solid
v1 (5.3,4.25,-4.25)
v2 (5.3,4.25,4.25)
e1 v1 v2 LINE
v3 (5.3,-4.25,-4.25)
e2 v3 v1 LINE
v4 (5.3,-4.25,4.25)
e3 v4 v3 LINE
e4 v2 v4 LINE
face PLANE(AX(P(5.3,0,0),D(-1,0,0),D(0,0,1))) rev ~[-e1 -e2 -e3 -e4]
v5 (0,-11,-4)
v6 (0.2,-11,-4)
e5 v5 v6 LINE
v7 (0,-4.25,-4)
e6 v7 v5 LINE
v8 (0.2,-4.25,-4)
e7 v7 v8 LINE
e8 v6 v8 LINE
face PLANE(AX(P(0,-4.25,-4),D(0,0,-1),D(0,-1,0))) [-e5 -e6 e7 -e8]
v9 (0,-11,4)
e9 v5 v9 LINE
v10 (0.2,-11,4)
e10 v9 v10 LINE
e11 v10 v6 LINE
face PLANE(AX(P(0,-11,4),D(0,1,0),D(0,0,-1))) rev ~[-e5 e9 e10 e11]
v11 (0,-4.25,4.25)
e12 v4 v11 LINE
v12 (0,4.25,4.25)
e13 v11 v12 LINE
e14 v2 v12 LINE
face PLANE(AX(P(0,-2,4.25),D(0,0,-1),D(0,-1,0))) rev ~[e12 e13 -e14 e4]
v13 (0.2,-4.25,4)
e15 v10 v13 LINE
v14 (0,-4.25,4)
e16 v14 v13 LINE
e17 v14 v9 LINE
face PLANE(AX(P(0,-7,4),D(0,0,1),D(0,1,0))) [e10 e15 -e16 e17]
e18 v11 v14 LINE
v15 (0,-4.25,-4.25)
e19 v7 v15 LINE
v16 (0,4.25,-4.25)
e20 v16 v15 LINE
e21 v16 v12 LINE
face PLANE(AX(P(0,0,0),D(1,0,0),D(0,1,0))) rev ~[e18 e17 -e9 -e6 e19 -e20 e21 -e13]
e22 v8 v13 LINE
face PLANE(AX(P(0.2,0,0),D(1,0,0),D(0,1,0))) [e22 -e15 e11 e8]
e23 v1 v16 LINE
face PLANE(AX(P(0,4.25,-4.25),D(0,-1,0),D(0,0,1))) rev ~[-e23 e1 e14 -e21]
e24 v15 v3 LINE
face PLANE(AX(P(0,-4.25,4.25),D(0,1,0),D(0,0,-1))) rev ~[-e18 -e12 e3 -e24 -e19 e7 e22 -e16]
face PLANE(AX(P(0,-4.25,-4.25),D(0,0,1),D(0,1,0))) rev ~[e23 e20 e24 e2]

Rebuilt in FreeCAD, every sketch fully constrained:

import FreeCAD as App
import Part
import Sketcher

V = App.Vector
Q = App.Units.Quantity


def add_polygon(sketch, points):
    """Adds a closed chain of lines whose ends are joined by coincident constraints."""
    first, n = sketch.GeometryCount, len(points)
    for a, b in zip(points, points[1:] + points[:1]):
        sketch.addGeometry(Part.LineSegment(App.Vector(*a, 0), App.Vector(*b, 0)), False)
    for i in range(n):
        sketch.addConstraint(Sketcher.Constraint("Coincident", first + i, 2, first + (i + 1) % n, 1))

doc = App.newDocument("Part")
body = doc.addObject("PartDesign::Body", "Body")

sketch1 = body.newObject("Sketcher::SketchObject", "Sketch")
sketch1.AttachmentSupport = (doc.getObject("YZ_Plane"), [""])
sketch1.MapMode = "FlatFace"
add_polygon(sketch1, [(-4.25, 4), (-11, 4), (-11, -4), (-4.25, -4), (-4.25, -4.25), (4.25, -4.25), (4.25, 4.25), (-4.25, 4.25)])
sketch1.addConstraint(Sketcher.Constraint("Horizontal", 0))
sketch1.addConstraint(Sketcher.Constraint("Vertical", 1))
sketch1.addConstraint(Sketcher.Constraint("Horizontal", 2))
sketch1.addConstraint(Sketcher.Constraint("Vertical", 3))
sketch1.addConstraint(Sketcher.Constraint("Horizontal", 4))
sketch1.addConstraint(Sketcher.Constraint("Vertical", 5))
sketch1.addConstraint(Sketcher.Constraint("Horizontal", 6))
sketch1.addConstraint(Sketcher.Constraint("Vertical", 7))
sketch1.addConstraint(Sketcher.Constraint("Symmetric", 3, 2, 5, 2, -1, 1))
sketch1.addConstraint(Sketcher.Constraint("Symmetric", 2, 2, 7, 2, -1))
sketch1.addConstraint(Sketcher.Constraint("Equal", 6, 5))
sketch1.addConstraint(Sketcher.Constraint("DistanceY", 1, 2, 1, 1, Q("8 mm")))
sketch1.addConstraint(Sketcher.Constraint("DistanceX", 4, 1, 4, 2, Q("8.5 mm")))
sketch1.addConstraint(Sketcher.Constraint("DistanceX", 0, 2, -1, 1, Q("11 mm")))
pad1 = body.newObject("PartDesign::Pad", "Pad")
pad1.Profile = sketch1
pad1.Length = 0.2

sketch2 = body.newObject("Sketcher::SketchObject", "Sketch001")
sketch2.AttachmentSupport = (doc.getObject("YZ_Plane"), [""])
sketch2.MapMode = "FlatFace"
add_polygon(sketch2, [(4, 4), (4, -4), (-4, -4), (-4, 4)])
sketch2.addConstraint(Sketcher.Constraint("Vertical", 0))
sketch2.addConstraint(Sketcher.Constraint("Horizontal", 1))
sketch2.addConstraint(Sketcher.Constraint("Vertical", 2))
sketch2.addConstraint(Sketcher.Constraint("Horizontal", 3))
sketch2.addConstraint(Sketcher.Constraint("Symmetric", 0, 2, 2, 2, -1, 1))
sketch2.addConstraint(Sketcher.Constraint("Equal", 3, 0))
sketch2.addConstraint(Sketcher.Constraint("DistanceX", 1, 2, 1, 1, Q("8.5 mm")))
pad2 = body.newObject("PartDesign::Pad", "Pad001")
pad2.Profile = sketch2
pad2.Length = 5.3

doc.recompute()
